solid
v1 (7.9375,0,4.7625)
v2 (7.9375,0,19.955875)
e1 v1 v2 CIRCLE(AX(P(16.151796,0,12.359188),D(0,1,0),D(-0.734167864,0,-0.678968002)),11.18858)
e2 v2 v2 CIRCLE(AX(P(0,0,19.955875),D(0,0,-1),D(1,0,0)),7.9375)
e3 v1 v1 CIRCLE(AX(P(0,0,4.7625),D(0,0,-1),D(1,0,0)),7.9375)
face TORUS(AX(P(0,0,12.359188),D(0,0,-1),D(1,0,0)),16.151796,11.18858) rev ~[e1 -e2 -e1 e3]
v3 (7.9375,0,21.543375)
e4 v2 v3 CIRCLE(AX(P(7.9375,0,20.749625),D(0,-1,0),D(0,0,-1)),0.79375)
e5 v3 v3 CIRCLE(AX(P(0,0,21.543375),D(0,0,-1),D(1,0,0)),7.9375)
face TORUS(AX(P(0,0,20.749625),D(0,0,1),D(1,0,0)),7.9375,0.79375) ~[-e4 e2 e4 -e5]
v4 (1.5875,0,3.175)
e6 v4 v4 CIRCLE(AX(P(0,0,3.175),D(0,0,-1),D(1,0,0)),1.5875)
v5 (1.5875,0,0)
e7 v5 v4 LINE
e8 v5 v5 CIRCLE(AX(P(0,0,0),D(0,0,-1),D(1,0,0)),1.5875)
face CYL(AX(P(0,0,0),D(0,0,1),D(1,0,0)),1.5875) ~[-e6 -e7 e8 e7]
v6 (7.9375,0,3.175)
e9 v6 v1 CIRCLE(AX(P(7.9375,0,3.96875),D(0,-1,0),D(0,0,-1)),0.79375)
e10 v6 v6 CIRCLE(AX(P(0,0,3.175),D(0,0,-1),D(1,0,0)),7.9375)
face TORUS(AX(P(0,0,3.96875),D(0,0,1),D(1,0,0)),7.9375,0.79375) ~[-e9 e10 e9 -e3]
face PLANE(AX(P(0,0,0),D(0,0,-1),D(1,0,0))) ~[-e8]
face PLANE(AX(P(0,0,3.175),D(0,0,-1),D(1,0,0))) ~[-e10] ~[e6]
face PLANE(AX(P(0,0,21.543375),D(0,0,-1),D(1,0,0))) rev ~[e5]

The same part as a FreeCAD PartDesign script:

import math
import FreeCAD as App
import Part
import Sketcher
Q = App.Units.Quantity

doc = App.newDocument("Part")
body = doc.addObject("PartDesign::Body", "Body")

sketch1 = body.newObject("Sketcher::SketchObject", "Sketch")
sketch1.AttachmentSupport = (doc.getObject("XZ_Plane"), [""])
sketch1.MapMode = "FlatFace"
sketch1.addGeometry([
    Part.LineSegment(App.Vector(0, 21.5, 0), App.Vector(0, 0, 0)),
    Part.LineSegment(App.Vector(0, 0, 0), App.Vector(1.6, 0, 0)),
    Part.LineSegment(App.Vector(1.6, 0, 0), App.Vector(1.6, 3.2, 0)),
    Part.LineSegment(App.Vector(1.6, 3.2, 0), App.Vector(7.9, 3.2, 0)),
    Part.ArcOfCircle(Part.Circle(App.Vector(7.9, 4, 0), App.Vector(0, 0, 1), 0.8), math.radians(-90), math.radians(90)),
    Part.ArcOfCircle(Part.Circle(App.Vector(16.2, 12.4, 0), App.Vector(0, 0, 1), 11.2), math.radians(137), math.radians(223)),
    Part.ArcOfCircle(Part.Circle(App.Vector(7.9, 20.7, 0), App.Vector(0, 0, 1), 0.8), math.radians(-90), math.radians(90)),
    Part.LineSegment(App.Vector(7.9, 21.5, 0), App.Vector(0, 21.5, 0)),
], False)
sketch1.addConstraint([
    Sketcher.Constraint("Coincident", 0, 2, 1, 1),
    Sketcher.Constraint("Coincident", 1, 2, 2, 1),
    Sketcher.Constraint("Coincident", 2, 2, 3, 1),
    Sketcher.Constraint("Tangent", 3, 2, 4, 1),
    Sketcher.Constraint("Coincident", 4, 2, 5, 2),
    Sketcher.Constraint("Coincident", 5, 1, 6, 1),
    Sketcher.Constraint("Tangent", 6, 2, 7, 1),
    Sketcher.Constraint("Coincident", 7, 2, 0, 1),
    Sketcher.Constraint("Vertical", 0),
    Sketcher.Constraint("Horizontal", 1),
    Sketcher.Constraint("Vertical", 2),
    Sketcher.Constraint("Horizontal", 3),
    Sketcher.Constraint("Horizontal", 7),
    Sketcher.Constraint("Coincident", 0, 2, -1, 1),
    Sketcher.Constraint("Equal", 4, 6),
    Sketcher.Constraint("Vertical", 4, 3, 6, 3),
    Sketcher.Constraint("Vertical", 3, 2, 4, 2),
    Sketcher.Constraint("Vertical", 4, 2, 5, 1),
    Sketcher.Constraint("Radius", 4, Q("0.03125 in")),
    Sketcher.Constraint("DistanceX", 3, 1, 3, 2, Q("0.25 in")),
    Sketcher.Constraint("DistanceX", 1, 1, 1, 2, Q("0.0625 in")),
    Sketcher.Constraint("DistanceY", 2, 1, 2, 2, Q("0.125 in")),
    Sketcher.Constraint("Radius", 5, 11.18858),
    Sketcher.Constraint("DistanceY", 0, 2, 0, 1, 21.543375),
])
revolution = body.newObject("PartDesign::Revolution", "Revolution")
revolution.Profile = sketch1
revolution.ReferenceAxis = (sketch1, ["V_Axis"])
revolution.Angle = 360

doc.recompute()
